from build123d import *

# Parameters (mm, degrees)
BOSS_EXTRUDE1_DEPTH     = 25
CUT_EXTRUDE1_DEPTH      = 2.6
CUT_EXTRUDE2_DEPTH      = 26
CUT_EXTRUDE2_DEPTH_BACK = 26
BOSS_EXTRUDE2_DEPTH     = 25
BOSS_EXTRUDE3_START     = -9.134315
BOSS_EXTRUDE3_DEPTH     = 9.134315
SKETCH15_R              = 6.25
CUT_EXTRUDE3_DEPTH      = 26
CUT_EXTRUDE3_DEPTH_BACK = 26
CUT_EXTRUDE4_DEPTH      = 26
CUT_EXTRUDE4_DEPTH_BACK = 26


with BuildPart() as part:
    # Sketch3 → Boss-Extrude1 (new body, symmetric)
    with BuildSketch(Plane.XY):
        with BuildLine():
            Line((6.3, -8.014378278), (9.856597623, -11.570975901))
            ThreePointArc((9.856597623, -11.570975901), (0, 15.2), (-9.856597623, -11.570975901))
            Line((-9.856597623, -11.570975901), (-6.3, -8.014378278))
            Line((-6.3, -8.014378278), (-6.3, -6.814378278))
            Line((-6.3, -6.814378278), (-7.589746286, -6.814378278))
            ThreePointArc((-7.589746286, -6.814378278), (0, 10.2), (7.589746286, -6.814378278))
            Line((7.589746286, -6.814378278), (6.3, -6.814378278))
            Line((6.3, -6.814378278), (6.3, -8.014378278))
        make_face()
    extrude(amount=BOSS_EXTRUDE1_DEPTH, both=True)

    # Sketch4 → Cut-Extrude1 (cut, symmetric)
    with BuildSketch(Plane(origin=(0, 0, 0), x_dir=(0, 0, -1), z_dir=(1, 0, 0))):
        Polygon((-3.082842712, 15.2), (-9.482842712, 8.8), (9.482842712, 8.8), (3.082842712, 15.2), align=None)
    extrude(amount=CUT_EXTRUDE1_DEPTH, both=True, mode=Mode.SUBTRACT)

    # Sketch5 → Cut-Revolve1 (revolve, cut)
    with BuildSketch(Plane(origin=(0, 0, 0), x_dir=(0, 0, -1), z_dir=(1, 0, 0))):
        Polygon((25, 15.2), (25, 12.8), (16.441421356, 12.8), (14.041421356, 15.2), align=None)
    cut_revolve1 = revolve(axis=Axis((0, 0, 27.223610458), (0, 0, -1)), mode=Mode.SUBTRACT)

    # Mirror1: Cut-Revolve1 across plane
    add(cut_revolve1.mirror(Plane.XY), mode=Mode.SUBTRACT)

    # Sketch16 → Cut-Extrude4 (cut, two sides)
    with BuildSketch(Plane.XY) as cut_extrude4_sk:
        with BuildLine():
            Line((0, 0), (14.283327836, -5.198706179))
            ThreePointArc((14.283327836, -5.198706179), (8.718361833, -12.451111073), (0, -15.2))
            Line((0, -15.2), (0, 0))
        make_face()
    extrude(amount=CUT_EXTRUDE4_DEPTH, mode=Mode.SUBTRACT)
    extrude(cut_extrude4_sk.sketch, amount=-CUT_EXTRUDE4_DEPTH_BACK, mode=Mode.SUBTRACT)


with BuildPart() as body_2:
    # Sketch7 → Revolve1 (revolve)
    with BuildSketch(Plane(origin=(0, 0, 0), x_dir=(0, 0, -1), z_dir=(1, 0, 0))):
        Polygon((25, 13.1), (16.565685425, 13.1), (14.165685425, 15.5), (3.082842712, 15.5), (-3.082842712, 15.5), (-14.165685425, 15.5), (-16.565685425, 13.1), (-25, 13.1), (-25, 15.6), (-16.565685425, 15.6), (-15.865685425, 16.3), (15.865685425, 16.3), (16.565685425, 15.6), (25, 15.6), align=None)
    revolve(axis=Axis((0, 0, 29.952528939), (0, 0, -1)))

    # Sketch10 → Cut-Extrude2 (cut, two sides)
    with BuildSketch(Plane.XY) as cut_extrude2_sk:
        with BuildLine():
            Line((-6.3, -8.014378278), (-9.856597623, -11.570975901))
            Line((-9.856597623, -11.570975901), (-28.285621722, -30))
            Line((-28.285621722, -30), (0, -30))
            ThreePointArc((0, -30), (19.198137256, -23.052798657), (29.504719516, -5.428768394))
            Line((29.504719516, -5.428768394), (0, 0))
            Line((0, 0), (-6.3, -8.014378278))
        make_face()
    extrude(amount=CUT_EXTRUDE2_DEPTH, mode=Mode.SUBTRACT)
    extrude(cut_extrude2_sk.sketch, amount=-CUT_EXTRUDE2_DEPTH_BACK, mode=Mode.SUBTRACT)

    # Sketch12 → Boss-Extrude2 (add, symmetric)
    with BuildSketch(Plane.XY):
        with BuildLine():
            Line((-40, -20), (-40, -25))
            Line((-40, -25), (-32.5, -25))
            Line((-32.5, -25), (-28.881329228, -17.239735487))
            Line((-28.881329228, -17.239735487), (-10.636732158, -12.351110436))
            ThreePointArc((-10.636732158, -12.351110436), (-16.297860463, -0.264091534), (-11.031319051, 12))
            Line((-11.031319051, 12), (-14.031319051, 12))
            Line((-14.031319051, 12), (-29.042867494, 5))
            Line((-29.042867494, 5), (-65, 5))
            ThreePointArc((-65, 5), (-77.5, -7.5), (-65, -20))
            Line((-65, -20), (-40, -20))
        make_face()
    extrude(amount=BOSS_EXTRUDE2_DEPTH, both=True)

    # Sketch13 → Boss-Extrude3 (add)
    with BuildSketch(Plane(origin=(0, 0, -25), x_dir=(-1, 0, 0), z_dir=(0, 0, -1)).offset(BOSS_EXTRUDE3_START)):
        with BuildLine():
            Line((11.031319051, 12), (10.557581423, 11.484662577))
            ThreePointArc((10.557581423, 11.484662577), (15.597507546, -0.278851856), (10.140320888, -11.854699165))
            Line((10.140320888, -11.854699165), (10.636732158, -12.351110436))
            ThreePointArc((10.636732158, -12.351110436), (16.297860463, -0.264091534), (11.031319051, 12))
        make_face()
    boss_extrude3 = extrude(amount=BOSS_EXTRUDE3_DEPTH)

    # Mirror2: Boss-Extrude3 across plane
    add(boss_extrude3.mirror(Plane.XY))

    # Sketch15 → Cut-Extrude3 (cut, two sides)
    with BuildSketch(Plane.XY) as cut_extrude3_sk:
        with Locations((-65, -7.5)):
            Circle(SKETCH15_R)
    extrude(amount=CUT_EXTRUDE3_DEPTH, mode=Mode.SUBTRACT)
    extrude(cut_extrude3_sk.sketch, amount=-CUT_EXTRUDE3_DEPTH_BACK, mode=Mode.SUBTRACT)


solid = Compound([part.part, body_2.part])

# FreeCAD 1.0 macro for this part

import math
import FreeCAD as App
import Part
import Sketcher

V = App.Vector
Q = App.Units.Quantity

doc = App.newDocument("Part")
body = doc.addObject("PartDesign::Body", "Body")

# Sketch on XY plane
sketch1 = body.newObject("Sketcher::SketchObject", "Sketch")
sketch1.AttachmentSupport = (doc.getObject("XY_Plane"), [""])
sketch1.MapMode = "FlatFace"
sketch1.addGeometry([
    Part.LineSegment(V(6.3, -8.014378, 0), V(9.856598, -11.570976, 0)),  # 0
    Part.ArcOfCircle(Part.Circle(V(0, 0, 0), V(0, 0, 1), 15.2), math.radians(-49.574379), math.radians(229.574379)),  # 1
    Part.LineSegment(V(-9.856598, -11.570976, 0), V(-6.3, -8.014378, 0)),  # 2
    Part.LineSegment(V(-6.3, -8.014378, 0), V(-6.3, -6.814378, 0)),  # 3
    Part.LineSegment(V(-6.3, -6.814378, 0), V(-7.589746, -6.814378, 0)),  # 4
    Part.ArcOfCircle(Part.Circle(V(0, 0, 0), V(0, 0, 1), 10.2), math.radians(-41.918766), math.radians(221.918766)),  # 5
    Part.LineSegment(V(7.589746, -6.814378, 0), V(6.3, -6.814378, 0)),  # 6
    Part.LineSegment(V(6.3, -6.814378, 0), V(6.3, -8.014378, 0)),  # 7
], False)
sketch1.addConstraint([
    Sketcher.Constraint("Coincident", 0, 2, 1, 1),
    Sketcher.Constraint("Coincident", 1, 2, 2, 1),
    Sketcher.Constraint("Coincident", 2, 2, 3, 1),
    Sketcher.Constraint("Coincident", 3, 2, 4, 1),
    Sketcher.Constraint("Coincident", 4, 2, 5, 2),
    Sketcher.Constraint("Coincident", 5, 1, 6, 1),
    Sketcher.Constraint("Coincident", 6, 2, 7, 1),
    Sketcher.Constraint("Coincident", 7, 2, 0, 1),
    Sketcher.Constraint("Vertical", 3),
    Sketcher.Constraint("Horizontal", 4),
    Sketcher.Constraint("Horizontal", 6),
    Sketcher.Constraint("Vertical", 7),
    Sketcher.Constraint("Coincident", 1, 3, -1, 1),
    Sketcher.Constraint("Coincident", 5, 3, -1, 1),
    Sketcher.Constraint("Symmetric", 3, 2, 6, 2, -2),
    Sketcher.Constraint("Perpendicular", 0, 2),
    Sketcher.Constraint("Horizontal", 0, 2, 1, 2),
    Sketcher.Constraint("Horizontal", 2, 2, 7, 2),
    Sketcher.Constraint("Radius", 1, Q("15.2 mm")),
    Sketcher.Constraint("Radius", 5, Q("10.2 mm")),
    Sketcher.Constraint("DistanceY", 3, 1, 3, 2, Q("1.2 mm")),
    Sketcher.Constraint("DistanceX", 2, 2, -1, 1, Q("6.3 mm")),
    Sketcher.Constraint("Distance", 0, Q("5.029789 mm")),
])
pad1 = body.newObject("PartDesign::Pad", "Pad")
pad1.Profile = sketch1
pad1.Length = 50
pad1.Midplane = True

# Sketch on YZ plane
sketch2 = body.newObject("Sketcher::SketchObject", "Sketch001")
sketch2.AttachmentSupport = (doc.getObject("YZ_Plane"), [""])
sketch2.MapMode = "FlatFace"
sketch2.addGeometry([
    Part.LineSegment(V(15.2, 3.082843, 0), V(8.8, 9.482843, 0)),
    Part.LineSegment(V(8.8, 9.482843, 0), V(8.8, -9.482843, 0)),
    Part.LineSegment(V(8.8, -9.482843, 0), V(15.2, -3.082843, 0)),
    Part.LineSegment(V(15.2, -3.082843, 0), V(15.2, 3.082843, 0)),
], False)
sketch2.addConstraint([
    Sketcher.Constraint("Coincident", 0, 2, 1, 1),
    Sketcher.Constraint("Coincident", 1, 2, 2, 1),
    Sketcher.Constraint("Coincident", 2, 2, 3, 1),
    Sketcher.Constraint("Coincident", 3, 2, 0, 1),
    Sketcher.Constraint("Vertical", 1),
    Sketcher.Constraint("Vertical", 3),
    Sketcher.Constraint("Perpendicular", 0, 2),
    Sketcher.Constraint("Equal", 0, 2),
    Sketcher.Constraint("DistanceX", -1, 1, 0, 2, Q("8.8 mm")),
    Sketcher.Constraint("DistanceX", -1, 1, 2, 2, Q("15.2 mm")),
    Sketcher.Constraint("DistanceY", 1, 2, 1, 1, Q("18.965685 mm")),
    Sketcher.Constraint("DistanceY", -1, 1, 0, 2, Q("9.482843 mm")),
])
pocket1 = body.newObject("PartDesign::Pocket", "Pocket")
pocket1.Profile = sketch2
pocket1.Length = 5.2
pocket1.Midplane = True

# Sketch on YZ plane
sketch3 = body.newObject("Sketcher::SketchObject", "Sketch002")
sketch3.AttachmentSupport = (doc.getObject("YZ_Plane"), [""])
sketch3.MapMode = "FlatFace"
sketch3.addGeometry([
    Part.LineSegment(V(12.8, -25, 0), V(15.2, -25, 0)),
    Part.LineSegment(V(15.2, -25, 0), V(15.2, -14.041421, 0)),
    Part.LineSegment(V(15.2, -14.041421, 0), V(12.8, -16.441421, 0)),
    Part.LineSegment(V(12.8, -16.441421, 0), V(12.8, -25, 0)),
], False)
sketch3.addConstraint([
    Sketcher.Constraint("Coincident", 0, 2, 1, 1),
    Sketcher.Constraint("Coincident", 1, 2, 2, 1),
    Sketcher.Constraint("Coincident", 2, 2, 3, 1),
    Sketcher.Constraint("Coincident", 3, 2, 0, 1),
    Sketcher.Constraint("Horizontal", 0),
    Sketcher.Constraint("Vertical", 1),
    Sketcher.Constraint("Vertical", 3),
    Sketcher.Constraint("Angle", 2, Q("-135 deg")),
    Sketcher.Constraint("DistanceX", 0, 1, 0, 2, Q("2.4 mm")),
    Sketcher.Constraint("DistanceY", 0, 2, -1, 1, Q("25 mm")),
    Sketcher.Constraint("DistanceX", -1, 1, 0, 2, Q("15.2 mm")),
    Sketcher.Constraint("DistanceY", 1, 1, 1, 2, Q("10.958579 mm")),
])
groove = body.newObject("PartDesign::Groove", "Groove")
groove.Profile = sketch3
groove.ReferenceAxis = (sketch3, ["V_Axis"])
groove.Angle = 360
doc.recompute()

mirrored = body.newObject("PartDesign::Mirrored", "Mirrored")
mirrored.Originals = [groove]
mirrored.MirrorPlane = (doc.getObject("XY_Plane"), [""])
body.Tip = mirrored

# Sketch on XY plane
sketch4 = body.newObject("Sketcher::SketchObject", "Sketch003")
sketch4.AttachmentSupport = (doc.getObject("XY_Plane"), [""])
sketch4.MapMode = "FlatFace"
sketch4.addGeometry([
    Part.LineSegment(V(14.283328, -5.198706, 0), V(0, 0, 0)),
    Part.LineSegment(V(0, 0, 0), V(0, -15.2, 0)),
    Part.ArcOfCircle(Part.Circle(V(0, 0, 0), V(0, 0, 1), 15.2), math.radians(-90), math.radians(-20)),
], False)
sketch4.addConstraint([
    Sketcher.Constraint("Coincident", 0, 2, 1, 1),
    Sketcher.Constraint("Coincident", 1, 2, 2, 1),
    Sketcher.Constraint("Coincident", 2, 2, 0, 1),
    Sketcher.Constraint("Vertical", 1),
    Sketcher.Constraint("Coincident", 2, 3, -1, 1),
    Sketcher.Constraint("Coincident", 0, 2, -1, 1),
    Sketcher.Constraint("Radius", 2, Q("15.2 mm")),
    Sketcher.Constraint("Angle", 0, Q("160 deg")),
])
pocket2 = body.newObject("PartDesign::Pocket", "Pocket001")
pocket2.Profile = sketch4
pocket2.Type = "ThroughAll"
pocket2.Midplane = True
body2 = doc.addObject("PartDesign::Body", "Body001")

# Sketch on YZ plane
sketch5 = body2.newObject("Sketcher::SketchObject", "Sketch004")
sketch5.AttachmentSupport = (doc.getObject("YZ_Plane001"), [""])
sketch5.MapMode = "FlatFace"
sketch5.addGeometry([
    Part.LineSegment(V(13.1, -16.565685, 0), V(13.1, -25, 0)),  # 0
    Part.LineSegment(V(13.1, -25, 0), V(15.6, -25, 0)),  # 1
    Part.LineSegment(V(15.6, -25, 0), V(15.6, -16.565685, 0)),  # 2
    Part.LineSegment(V(15.6, -16.565685, 0), V(16.3, -15.865685, 0)),  # 3
    Part.LineSegment(V(16.3, -15.865685, 0), V(16.3, 15.865685, 0)),  # 4
    Part.LineSegment(V(16.3, 15.865685, 0), V(15.6, 16.565685, 0)),  # 5
    Part.LineSegment(V(15.6, 16.565685, 0), V(15.6, 25, 0)),  # 6
    Part.LineSegment(V(15.6, 25, 0), V(13.1, 25, 0)),  # 7
    Part.LineSegment(V(13.1, 25, 0), V(13.1, 16.565685, 0)),  # 8
    Part.LineSegment(V(13.1, 16.565685, 0), V(15.5, 14.165685, 0)),  # 9
    Part.LineSegment(V(15.5, 14.165685, 0), V(15.5, -14.165685, 0)),  # 10
    Part.LineSegment(V(15.5, -14.165685, 0), V(13.1, -16.565685, 0)),  # 11
], False)
sketch5.addConstraint([
    Sketcher.Constraint("Coincident", 0, 2, 1, 1),
    Sketcher.Constraint("Coincident", 1, 2, 2, 1),
    Sketcher.Constraint("Coincident", 2, 2, 3, 1),
    Sketcher.Constraint("Coincident", 3, 2, 4, 1),
    Sketcher.Constraint("Coincident", 4, 2, 5, 1),
    Sketcher.Constraint("Coincident", 5, 2, 6, 1),
    Sketcher.Constraint("Coincident", 6, 2, 7, 1),
    Sketcher.Constraint("Coincident", 7, 2, 8, 1),
    Sketcher.Constraint("Coincident", 8, 2, 9, 1),
    Sketcher.Constraint("Coincident", 9, 2, 10, 1),
    Sketcher.Constraint("Coincident", 10, 2, 11, 1),
    Sketcher.Constraint("Coincident", 11, 2, 0, 1),
    Sketcher.Constraint("Vertical", 0),
    Sketcher.Constraint("Horizontal", 1),
    Sketcher.Constraint("Vertical", 2),
    Sketcher.Constraint("Vertical", 4),
    Sketcher.Constraint("Vertical", 6),
    Sketcher.Constraint("Horizontal", 7),
    Sketcher.Constraint("Vertical", 8),
    Sketcher.Constraint("Vertical", 10),
    Sketcher.Constraint("Symmetric", 2, 2, 5, 2, -1),
    Sketcher.Constraint("Symmetric", 0, 2, 7, 2, -1),
    Sketcher.Constraint("Perpendicular", 3, 5),
    Sketcher.Constraint("Parallel", 5, 9),
    Sketcher.Constraint("Perpendicular", 9, 11),
    Sketcher.Constraint("Horizontal", 5, 2, 8, 2),
    Sketcher.Constraint("Horizontal", 2, 2, 11, 2),
    Sketcher.Constraint("Equal", 3, 5),
    Sketcher.Constraint("DistanceX", 1, 1, 1, 2, Q("2.5 mm")),
    Sketcher.Constraint("DistanceY", 0, 2, -1, 1, Q("25 mm")),
    Sketcher.Constraint("DistanceX", -1, 1, 0, 2, Q("13.1 mm")),
    Sketcher.Constraint("DistanceX", -1, 1, 3, 2, Q("16.3 mm")),
    Sketcher.Constraint("DistanceX", -1, 1, 9, 2, Q("15.5 mm")),
    Sketcher.Constraint("DistanceY", 4, 1, 4, 2, Q("31.731371 mm")),
])
revolution = body2.newObject("PartDesign::Revolution", "Revolution")
revolution.Profile = sketch5
revolution.ReferenceAxis = (sketch5, ["V_Axis"])
revolution.Angle = 360

# Sketch on XY plane
sketch6 = body2.newObject("Sketcher::SketchObject", "Sketch005")
sketch6.AttachmentSupport = (doc.getObject("XY_Plane001"), [""])
sketch6.MapMode = "FlatFace"
sketch6.addGeometry([
    Part.LineSegment(V(-6.3, -8.014378, 0), V(-28.285622, -30, 0)),  # 0
    Part.LineSegment(V(-28.285622, -30, 0), V(0, -30, 0)),  # 1
    Part.ArcOfCircle(Part.Circle(V(0, 0, 0), V(0, 0, 1), 30), math.radians(-90), math.radians(-10.425621)),  # 2
    Part.LineSegment(V(29.50472, -5.428768, 0), V(0, 0, 0)),  # 3
    Part.LineSegment(V(0, 0, 0), V(-6.3, -8.014378, 0)),  # 4
], False)
sketch6.addConstraint([
    Sketcher.Constraint("Coincident", 0, 2, 1, 1),
    Sketcher.Constraint("Tangent", 1, 2, 2, 1),
    Sketcher.Constraint("Coincident", 2, 2, 3, 1),
    Sketcher.Constraint("Coincident", 3, 2, 4, 1),
    Sketcher.Constraint("Coincident", 4, 2, 0, 1),
    Sketcher.Constraint("Horizontal", 1),
    Sketcher.Constraint("Coincident", 2, 3, -1, 1),
    Sketcher.Constraint("Coincident", 3, 2, -1, 1),
    Sketcher.Constraint("Radius", 2, Q("30 mm")),
    Sketcher.Constraint("Angle", 0, Q("-135 deg")),
    Sketcher.Constraint("DistanceX", 4, 2, -1, 1, Q("6.3 mm")),
    Sketcher.Constraint("DistanceX", 1, 1, 1, 2, Q("28.285622 mm")),
    Sketcher.Constraint("DistanceX", -1, 1, 2, 2, Q("29.50472 mm")),
])
pocket3 = body2.newObject("PartDesign::Pocket", "Pocket002")
pocket3.Profile = sketch6
pocket3.Type = "ThroughAll"
pocket3.Midplane = True

# Sketch on XY plane
sketch7 = body2.newObject("Sketcher::SketchObject", "Sketch006")
sketch7.AttachmentSupport = (doc.getObject("XY_Plane001"), [""])
sketch7.MapMode = "FlatFace"
sketch7.addGeometry([
    Part.LineSegment(V(-40, -20, 0), V(-40, -25, 0)),  # 0
    Part.LineSegment(V(-40, -25, 0), V(-32.5, -25, 0)),  # 1
    Part.LineSegment(V(-32.5, -25, 0), V(-28.881329, -17.239735, 0)),  # 2
    Part.LineSegment(V(-28.881329, -17.239735, 0), V(-10.636732, -12.35111, 0)),  # 3
    Part.ArcOfCircle(Part.Circle(V(0, 0, 0), V(0, 0, 1), 16.3), math.radians(132.5916), math.radians(229.265087)),  # 4
    Part.LineSegment(V(-11.031319, 12, 0), V(-14.031319, 12, 0)),  # 5
    Part.LineSegment(V(-14.031319, 12, 0), V(-29.042867, 5, 0)),  # 6
    Part.LineSegment(V(-29.042867, 5, 0), V(-65, 5, 0)),  # 7
    Part.ArcOfCircle(Part.Circle(V(-65, -7.5, 0), V(0, 0, 1), 12.5), math.radians(90), math.radians(270)),  # 8
    Part.LineSegment(V(-65, -20, 0), V(-40, -20, 0)),  # 9
], False)
sketch7.addConstraint([
    Sketcher.Constraint("Coincident", 0, 2, 1, 1),
    Sketcher.Constraint("Coincident", 1, 2, 2, 1),
    Sketcher.Constraint("Coincident", 2, 2, 3, 1),
    Sketcher.Constraint("Coincident", 3, 2, 4, 2),
    Sketcher.Constraint("Coincident", 4, 1, 5, 1),
    Sketcher.Constraint("Coincident", 5, 2, 6, 1),
    Sketcher.Constraint("Coincident", 6, 2, 7, 1),
    Sketcher.Constraint("Tangent", 7, 2, 8, 1),
    Sketcher.Constraint("Tangent", 8, 2, 9, 1),
    Sketcher.Constraint("Coincident", 9, 2, 0, 1),
    Sketcher.Constraint("Vertical", 0),
    Sketcher.Constraint("Horizontal", 1),
    Sketcher.Constraint("Horizontal", 5),
    Sketcher.Constraint("Horizontal", 7),
    Sketcher.Constraint("Horizontal", 9),
    Sketcher.Constraint("Coincident", 4, 3, -1, 1),
    Sketcher.Constraint("Radius", 4, Q("16.3 mm")),
    Sketcher.Constraint("Radius", 8, Q("12.5 mm")),
    Sketcher.Constraint("DistanceX", 5, 2, 5, 1, Q("3 mm")),
    Sketcher.Constraint("DistanceX", 9, 1, 9, 2, Q("25 mm")),
    Sketcher.Constraint("DistanceY", 0, 2, 0, 1, Q("5 mm")),
    Sketcher.Constraint("Angle", 2, Q("65 deg")),
    Sketcher.Constraint("Angle", 3, Q("15 deg")),
    Sketcher.Constraint("Angle", 6, Q("-155 deg")),
    Sketcher.Constraint("DistanceX", 1, 1, 1, 2, Q("7.5 mm")),
    Sketcher.Constraint("DistanceX", 8, 3, -1, 1, Q("65 mm")),
    Sketcher.Constraint("DistanceY", 0, 2, -1, 1, Q("25 mm")),
    Sketcher.Constraint("DistanceY", -1, 1, 4, 1, Q("12 mm")),
    Sketcher.Constraint("DistanceX", 2, 2, -1, 1, Q("28.881329 mm")),
])
pad2 = body2.newObject("PartDesign::Pad", "Pad001")
pad2.Profile = sketch7
pad2.Length = 50
pad2.Midplane = True

# Sketch on XY plane
sketch8 = body2.newObject("Sketcher::SketchObject", "Sketch007")
sketch8.AttachmentSupport = (doc.getObject("XY_Plane001"), [""])
sketch8.MapMode = "FlatFace"
sketch8.AttachmentOffset = App.Placement(V(0, 0, -15.865685), App.Rotation())
sketch8.addGeometry([
    Part.LineSegment(V(-11.031319, 12, 0), V(-10.557581, 11.484663, 0)),
    Part.ArcOfCircle(Part.Circle(V(0, 0, 0), V(0, 0, 1), 15.6), math.radians(132.5916), math.radians(229.456847)),
    Part.LineSegment(V(-10.140321, -11.854699, 0), V(-10.636732, -12.35111, 0)),
    Part.ArcOfCircle(Part.Circle(V(0, 0, 0), V(0, 0, 1), 16.3), math.radians(132.5916), math.radians(229.265087)),
], False)
sketch8.addConstraint([
    Sketcher.Constraint("Coincident", 0, 2, 1, 1),
    Sketcher.Constraint("Coincident", 1, 2, 2, 1),
    Sketcher.Constraint("Coincident", 2, 2, 3, 2),
    Sketcher.Constraint("Coincident", 3, 1, 0, 1),
    Sketcher.Constraint("Coincident", 1, 3, -1, 1),
    Sketcher.Constraint("Coincident", 3, 3, -1, 1),
    Sketcher.Constraint("Radius", 1, Q("15.6 mm")),
    Sketcher.Constraint("Radius", 3, Q("16.3 mm")),
    Sketcher.Constraint("Angle", 2, Q("-135 deg")),
    Sketcher.Constraint("DistanceY", -1, 1, 3, 1, Q("12 mm")),
    Sketcher.Constraint("DistanceX", 3, 1, 1, 2, Q("0.890998 mm")),
    Sketcher.Constraint("DistanceX", 0, 2, -1, 1, Q("10.557581 mm")),
])
pad3 = body2.newObject("PartDesign::Pad", "Pad002")
pad3.Profile = sketch8
pad3.Length = 9.134315
pad3.Reversed = True
doc.recompute()

mirrored2 = body2.newObject("PartDesign::Mirrored", "Mirrored001")
mirrored2.Originals = [pad3]
mirrored2.MirrorPlane = (doc.getObject("XY_Plane001"), [""])
body2.Tip = mirrored2

# Sketch on XY plane
sketch9 = body2.newObject("Sketcher::SketchObject", "Sketch008")
sketch9.AttachmentSupport = (doc.getObject("XY_Plane001"), [""])
sketch9.MapMode = "FlatFace"
sketch9.addGeometry(Part.Circle(V(-65, -7.5, 0), V(0, 0, 1), 6.25), False)
sketch9.addConstraint([
    Sketcher.Constraint("Diameter", 0, Q("12.5 mm")),
    Sketcher.Constraint("DistanceX", 0, 3, -1, 1, Q("65 mm")),
    Sketcher.Constraint("DistanceY", 0, 3, -1, 1, Q("7.5 mm")),
])
pocket4 = body2.newObject("PartDesign::Pocket", "Pocket003")
pocket4.Profile = sketch9
pocket4.Type = "ThroughAll"
pocket4.Midplane = True

doc.recompute()
